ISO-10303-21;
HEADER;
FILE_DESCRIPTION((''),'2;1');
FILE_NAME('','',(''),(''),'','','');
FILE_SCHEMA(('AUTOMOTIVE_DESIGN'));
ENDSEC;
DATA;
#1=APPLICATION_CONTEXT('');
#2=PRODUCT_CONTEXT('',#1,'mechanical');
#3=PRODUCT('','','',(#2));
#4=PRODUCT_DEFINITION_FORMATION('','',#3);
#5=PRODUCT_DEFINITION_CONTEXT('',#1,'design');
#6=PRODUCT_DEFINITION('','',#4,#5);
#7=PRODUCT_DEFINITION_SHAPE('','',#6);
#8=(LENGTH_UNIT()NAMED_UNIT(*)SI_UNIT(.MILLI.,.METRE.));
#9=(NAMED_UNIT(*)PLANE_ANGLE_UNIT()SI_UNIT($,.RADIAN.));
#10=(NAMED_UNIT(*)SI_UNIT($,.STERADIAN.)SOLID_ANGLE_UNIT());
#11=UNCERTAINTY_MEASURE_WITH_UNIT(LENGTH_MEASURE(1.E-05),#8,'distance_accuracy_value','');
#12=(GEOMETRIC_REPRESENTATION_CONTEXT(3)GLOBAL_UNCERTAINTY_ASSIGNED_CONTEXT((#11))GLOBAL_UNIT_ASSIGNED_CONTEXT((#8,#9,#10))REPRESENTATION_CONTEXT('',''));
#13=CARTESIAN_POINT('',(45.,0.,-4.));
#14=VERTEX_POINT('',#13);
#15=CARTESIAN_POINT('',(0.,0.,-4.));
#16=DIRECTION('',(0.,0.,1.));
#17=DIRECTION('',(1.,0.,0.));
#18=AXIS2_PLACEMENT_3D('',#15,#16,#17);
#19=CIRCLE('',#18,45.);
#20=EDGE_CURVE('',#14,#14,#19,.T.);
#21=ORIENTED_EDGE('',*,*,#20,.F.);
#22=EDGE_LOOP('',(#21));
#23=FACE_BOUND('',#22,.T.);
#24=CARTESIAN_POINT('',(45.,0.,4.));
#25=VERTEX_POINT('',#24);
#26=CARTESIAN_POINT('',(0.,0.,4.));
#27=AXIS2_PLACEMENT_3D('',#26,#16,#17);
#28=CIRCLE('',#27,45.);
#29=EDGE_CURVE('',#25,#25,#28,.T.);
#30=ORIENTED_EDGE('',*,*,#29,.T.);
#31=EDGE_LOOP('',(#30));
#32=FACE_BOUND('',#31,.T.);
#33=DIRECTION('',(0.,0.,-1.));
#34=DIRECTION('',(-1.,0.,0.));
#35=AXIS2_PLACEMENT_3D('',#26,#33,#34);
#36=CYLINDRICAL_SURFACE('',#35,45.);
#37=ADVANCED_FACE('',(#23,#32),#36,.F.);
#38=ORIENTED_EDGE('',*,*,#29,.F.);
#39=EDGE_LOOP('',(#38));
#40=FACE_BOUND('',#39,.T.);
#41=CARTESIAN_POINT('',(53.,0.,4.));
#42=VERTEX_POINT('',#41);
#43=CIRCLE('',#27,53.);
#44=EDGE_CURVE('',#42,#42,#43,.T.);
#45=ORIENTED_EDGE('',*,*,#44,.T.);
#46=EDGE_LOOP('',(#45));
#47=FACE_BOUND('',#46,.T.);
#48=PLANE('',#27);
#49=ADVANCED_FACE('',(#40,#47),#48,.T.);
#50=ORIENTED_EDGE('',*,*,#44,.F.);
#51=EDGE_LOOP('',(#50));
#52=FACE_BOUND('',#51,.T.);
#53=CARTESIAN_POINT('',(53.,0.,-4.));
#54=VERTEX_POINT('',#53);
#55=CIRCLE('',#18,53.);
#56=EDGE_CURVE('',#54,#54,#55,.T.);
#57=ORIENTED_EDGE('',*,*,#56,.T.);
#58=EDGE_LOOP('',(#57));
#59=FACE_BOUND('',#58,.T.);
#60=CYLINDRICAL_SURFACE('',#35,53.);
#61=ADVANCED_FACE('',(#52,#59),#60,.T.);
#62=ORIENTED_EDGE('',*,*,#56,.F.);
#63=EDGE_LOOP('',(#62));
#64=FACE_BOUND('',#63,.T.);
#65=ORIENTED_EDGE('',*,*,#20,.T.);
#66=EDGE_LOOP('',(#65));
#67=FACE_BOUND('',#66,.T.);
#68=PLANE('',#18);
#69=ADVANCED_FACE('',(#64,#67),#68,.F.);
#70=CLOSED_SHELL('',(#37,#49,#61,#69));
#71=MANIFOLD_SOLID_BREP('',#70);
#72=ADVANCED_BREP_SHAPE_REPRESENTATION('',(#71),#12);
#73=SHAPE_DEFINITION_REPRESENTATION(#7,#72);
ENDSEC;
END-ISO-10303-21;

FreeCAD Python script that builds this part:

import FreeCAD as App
import Part
import Sketcher

V = App.Vector

doc = App.newDocument("Part")
body = doc.addObject("PartDesign::Body", "Body")

sketch1 = body.newObject("Sketcher::SketchObject", "Sketch")
sketch1.AttachmentSupport = (doc.getObject("XY_Plane"), [""])
sketch1.MapMode = "FlatFace"
sketch1.addGeometry([
    Part.Circle(V(0, 0, 0), V(0, 0, 1), 53),
    Part.Circle(V(0, 0, 0), V(0, 0, 1), 45),
], False)
sketch1.addConstraint([
    Sketcher.Constraint("Coincident", 0, 3, -1, 1),
    Sketcher.Constraint("Coincident", 1, 3, -1, 1),
    Sketcher.Constraint("Diameter", 0, 106.0),
    Sketcher.Constraint("Diameter", 1, 90.0),
])
pad1 = body.newObject("PartDesign::Pad", "Pad")
pad1.Profile = sketch1
pad1.Length = 8
pad1.Midplane = True

doc.recompute()
